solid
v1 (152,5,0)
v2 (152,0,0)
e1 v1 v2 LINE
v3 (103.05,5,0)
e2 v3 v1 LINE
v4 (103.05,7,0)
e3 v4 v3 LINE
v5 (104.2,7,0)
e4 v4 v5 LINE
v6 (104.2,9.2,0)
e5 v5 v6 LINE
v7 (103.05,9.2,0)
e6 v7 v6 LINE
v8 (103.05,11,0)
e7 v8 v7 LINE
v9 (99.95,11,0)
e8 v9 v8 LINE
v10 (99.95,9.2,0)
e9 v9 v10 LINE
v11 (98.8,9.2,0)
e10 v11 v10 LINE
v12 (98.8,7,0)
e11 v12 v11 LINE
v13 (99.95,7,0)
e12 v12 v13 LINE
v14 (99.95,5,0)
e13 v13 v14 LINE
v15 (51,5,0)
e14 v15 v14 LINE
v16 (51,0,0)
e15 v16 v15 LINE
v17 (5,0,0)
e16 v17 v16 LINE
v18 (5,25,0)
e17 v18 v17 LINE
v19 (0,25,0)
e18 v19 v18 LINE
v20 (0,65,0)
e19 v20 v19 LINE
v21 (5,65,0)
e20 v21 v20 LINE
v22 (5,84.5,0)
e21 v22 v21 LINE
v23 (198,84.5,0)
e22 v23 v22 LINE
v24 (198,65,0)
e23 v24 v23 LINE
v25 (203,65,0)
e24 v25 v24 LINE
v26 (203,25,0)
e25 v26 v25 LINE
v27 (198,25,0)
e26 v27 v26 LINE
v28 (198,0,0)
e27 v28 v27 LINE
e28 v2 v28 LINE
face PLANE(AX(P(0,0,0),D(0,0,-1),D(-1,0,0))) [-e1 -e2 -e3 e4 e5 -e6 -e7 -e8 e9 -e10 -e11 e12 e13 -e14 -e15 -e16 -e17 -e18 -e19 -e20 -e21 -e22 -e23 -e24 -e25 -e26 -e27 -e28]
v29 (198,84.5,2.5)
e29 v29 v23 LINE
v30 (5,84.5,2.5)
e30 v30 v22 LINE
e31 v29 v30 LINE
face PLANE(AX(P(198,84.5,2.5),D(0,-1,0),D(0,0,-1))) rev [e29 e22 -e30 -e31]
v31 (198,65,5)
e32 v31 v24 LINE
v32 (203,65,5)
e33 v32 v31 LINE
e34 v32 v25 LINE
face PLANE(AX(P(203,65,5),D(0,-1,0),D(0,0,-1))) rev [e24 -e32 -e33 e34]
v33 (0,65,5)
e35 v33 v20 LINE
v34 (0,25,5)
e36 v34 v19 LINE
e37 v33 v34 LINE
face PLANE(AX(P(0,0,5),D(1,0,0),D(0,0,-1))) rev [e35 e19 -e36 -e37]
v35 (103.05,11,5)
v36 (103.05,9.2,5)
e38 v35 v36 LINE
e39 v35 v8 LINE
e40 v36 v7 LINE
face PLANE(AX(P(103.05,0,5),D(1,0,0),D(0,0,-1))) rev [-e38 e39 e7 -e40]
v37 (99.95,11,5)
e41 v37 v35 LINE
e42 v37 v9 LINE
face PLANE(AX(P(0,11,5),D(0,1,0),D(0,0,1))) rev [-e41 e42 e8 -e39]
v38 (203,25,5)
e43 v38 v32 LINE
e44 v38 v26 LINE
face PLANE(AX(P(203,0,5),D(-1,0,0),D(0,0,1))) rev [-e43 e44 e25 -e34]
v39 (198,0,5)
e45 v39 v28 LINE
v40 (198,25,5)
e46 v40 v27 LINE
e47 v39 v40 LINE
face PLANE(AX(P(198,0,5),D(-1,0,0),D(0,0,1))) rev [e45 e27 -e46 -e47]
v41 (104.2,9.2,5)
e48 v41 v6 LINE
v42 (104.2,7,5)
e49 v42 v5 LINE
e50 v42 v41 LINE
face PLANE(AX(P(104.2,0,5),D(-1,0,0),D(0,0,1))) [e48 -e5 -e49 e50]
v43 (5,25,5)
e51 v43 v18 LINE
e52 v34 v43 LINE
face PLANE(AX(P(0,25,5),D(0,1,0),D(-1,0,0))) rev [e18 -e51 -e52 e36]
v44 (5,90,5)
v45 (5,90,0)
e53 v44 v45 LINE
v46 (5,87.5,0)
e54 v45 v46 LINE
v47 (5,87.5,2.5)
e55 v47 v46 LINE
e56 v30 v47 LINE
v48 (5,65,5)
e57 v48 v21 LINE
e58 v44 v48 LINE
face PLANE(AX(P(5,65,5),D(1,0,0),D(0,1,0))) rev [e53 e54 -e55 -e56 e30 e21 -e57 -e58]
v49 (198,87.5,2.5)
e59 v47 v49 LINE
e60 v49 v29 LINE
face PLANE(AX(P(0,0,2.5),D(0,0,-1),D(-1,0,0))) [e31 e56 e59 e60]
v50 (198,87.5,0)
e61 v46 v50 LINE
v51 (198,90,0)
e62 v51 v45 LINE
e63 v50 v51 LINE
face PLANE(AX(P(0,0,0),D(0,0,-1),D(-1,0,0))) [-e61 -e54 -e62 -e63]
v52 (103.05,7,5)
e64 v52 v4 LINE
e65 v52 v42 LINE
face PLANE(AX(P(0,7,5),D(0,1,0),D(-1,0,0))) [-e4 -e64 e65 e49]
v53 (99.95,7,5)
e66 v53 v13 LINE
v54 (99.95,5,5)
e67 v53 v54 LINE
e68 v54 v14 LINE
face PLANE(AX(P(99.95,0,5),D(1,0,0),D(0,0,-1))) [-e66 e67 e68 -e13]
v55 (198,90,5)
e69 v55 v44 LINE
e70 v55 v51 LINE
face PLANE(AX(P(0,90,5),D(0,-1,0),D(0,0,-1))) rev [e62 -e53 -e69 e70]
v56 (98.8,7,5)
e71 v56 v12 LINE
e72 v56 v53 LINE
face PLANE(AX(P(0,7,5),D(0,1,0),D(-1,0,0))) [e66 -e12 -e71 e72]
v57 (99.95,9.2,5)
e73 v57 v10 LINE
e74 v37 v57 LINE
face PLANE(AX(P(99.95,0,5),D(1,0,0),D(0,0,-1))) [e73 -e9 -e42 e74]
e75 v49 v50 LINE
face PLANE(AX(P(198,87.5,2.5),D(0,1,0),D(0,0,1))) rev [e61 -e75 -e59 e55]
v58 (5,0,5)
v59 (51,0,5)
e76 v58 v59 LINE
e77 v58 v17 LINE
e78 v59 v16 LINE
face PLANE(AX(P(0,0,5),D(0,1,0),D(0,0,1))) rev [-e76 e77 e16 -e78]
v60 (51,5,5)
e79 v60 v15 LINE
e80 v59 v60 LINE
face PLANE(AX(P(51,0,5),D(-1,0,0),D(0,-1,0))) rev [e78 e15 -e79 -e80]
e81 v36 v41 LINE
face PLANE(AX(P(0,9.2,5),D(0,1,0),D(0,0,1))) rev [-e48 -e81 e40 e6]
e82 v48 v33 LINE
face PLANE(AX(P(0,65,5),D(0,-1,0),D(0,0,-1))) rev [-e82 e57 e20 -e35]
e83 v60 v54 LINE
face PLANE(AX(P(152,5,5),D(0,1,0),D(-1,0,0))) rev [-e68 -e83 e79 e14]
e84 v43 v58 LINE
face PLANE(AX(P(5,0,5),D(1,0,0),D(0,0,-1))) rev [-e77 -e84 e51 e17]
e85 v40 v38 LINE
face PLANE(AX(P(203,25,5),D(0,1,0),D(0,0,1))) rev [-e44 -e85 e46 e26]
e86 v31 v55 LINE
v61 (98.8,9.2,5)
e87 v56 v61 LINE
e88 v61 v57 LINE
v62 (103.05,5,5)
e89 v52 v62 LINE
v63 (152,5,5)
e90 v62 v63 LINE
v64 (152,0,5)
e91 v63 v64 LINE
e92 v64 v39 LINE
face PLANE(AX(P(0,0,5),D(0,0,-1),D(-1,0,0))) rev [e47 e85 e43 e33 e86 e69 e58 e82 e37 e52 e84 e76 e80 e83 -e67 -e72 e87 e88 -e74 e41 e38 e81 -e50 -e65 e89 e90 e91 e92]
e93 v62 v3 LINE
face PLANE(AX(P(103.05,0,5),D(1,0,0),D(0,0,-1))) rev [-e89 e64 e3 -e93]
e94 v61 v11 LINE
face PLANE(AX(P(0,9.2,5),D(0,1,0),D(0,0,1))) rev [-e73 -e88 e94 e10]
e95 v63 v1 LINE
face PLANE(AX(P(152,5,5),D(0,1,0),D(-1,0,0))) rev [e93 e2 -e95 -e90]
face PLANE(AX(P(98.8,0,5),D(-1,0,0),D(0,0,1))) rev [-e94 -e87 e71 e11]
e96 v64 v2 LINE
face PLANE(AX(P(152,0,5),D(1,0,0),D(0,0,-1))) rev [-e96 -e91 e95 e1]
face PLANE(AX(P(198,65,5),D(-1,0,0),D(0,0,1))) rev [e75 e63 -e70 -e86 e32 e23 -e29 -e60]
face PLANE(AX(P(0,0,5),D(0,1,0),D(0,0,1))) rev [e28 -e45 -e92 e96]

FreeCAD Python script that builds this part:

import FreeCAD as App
import Part
import Sketcher

V = App.Vector

doc = App.newDocument("Part")
body = doc.addObject("PartDesign::Body", "Body")

# Sketch on XY plane
sketch1 = doc.addObject("Sketcher::SketchObject", "Sketch")
body.addObject(sketch1)
sketch1.AttachmentSupport = (doc.XY_Plane, [""])
sketch1.MapMode = "FlatFace"
sketch1.addGeometry(Part.LineSegment(V(0, 90, 0), V(0, 0, 0)), False)
sketch1.addGeometry(Part.LineSegment(V(0, 0, 0), V(203, 0, 0)), False)
sketch1.addGeometry(Part.LineSegment(V(203, 0, 0), V(203, 90, 0)), False)
sketch1.addGeometry(Part.LineSegment(V(203, 90, 0), V(0, 90, 0)), False)
sketch1.addConstraint(Sketcher.Constraint("Coincident", 0, 2, 1, 1))
sketch1.addConstraint(Sketcher.Constraint("Coincident", 1, 2, 2, 1))
sketch1.addConstraint(Sketcher.Constraint("Coincident", 2, 2, 3, 1))
sketch1.addConstraint(Sketcher.Constraint("Coincident", 3, 2, 0, 1))
sketch1.addConstraint(Sketcher.Constraint("Vertical", 0))
sketch1.addConstraint(Sketcher.Constraint("Horizontal", 1))
sketch1.addConstraint(Sketcher.Constraint("Vertical", 2))
sketch1.addConstraint(Sketcher.Constraint("Horizontal", 3))
sketch1.addConstraint(Sketcher.Constraint("Coincident", 0, 2, -1, 1))
sketch1.addConstraint(Sketcher.Constraint("DistanceX", 1, 1, 1, 2, 203.0))
sketch1.addConstraint(Sketcher.Constraint("DistanceY", 0, 2, 0, 1, 90.0))
pad1 = doc.addObject("PartDesign::Pad", "Pad")
body.addObject(pad1)
pad1.Profile = sketch1
pad1.Length = 5

# Sketch on XY plane
sketch2 = doc.addObject("Sketcher::SketchObject", "Sketch001")
body.addObject(sketch2)
sketch2.AttachmentSupport = (doc.XY_Plane, [""])
sketch2.MapMode = "FlatFace"
sketch2.addGeometry(Part.LineSegment(V(203, 25, 0), V(203, 0, 0)), False)
sketch2.addGeometry(Part.LineSegment(V(203, 0, 0), V(198, 0, 0)), False)
sketch2.addGeometry(Part.LineSegment(V(198, 0, 0), V(198, 25, 0)), False)
sketch2.addGeometry(Part.LineSegment(V(198, 25, 0), V(203, 25, 0)), False)
sketch2.addGeometry(Part.LineSegment(V(203, 90, 0), V(203, 65, 0)), False)
sketch2.addGeometry(Part.LineSegment(V(203, 65, 0), V(198, 65, 0)), False)
sketch2.addGeometry(Part.LineSegment(V(198, 65, 0), V(198, 90, 0)), False)
sketch2.addGeometry(Part.LineSegment(V(198, 90, 0), V(203, 90, 0)), False)
sketch2.addGeometry(Part.LineSegment(V(5, 25, 0), V(5, 0, 0)), False)
sketch2.addGeometry(Part.LineSegment(V(5, 0, 0), V(0, 0, 0)), False)
sketch2.addGeometry(Part.LineSegment(V(0, 0, 0), V(0, 25, 0)), False)
sketch2.addGeometry(Part.LineSegment(V(0, 25, 0), V(5, 25, 0)), False)
sketch2.addGeometry(Part.LineSegment(V(5, 90, 0), V(5, 65, 0)), False)
sketch2.addGeometry(Part.LineSegment(V(5, 65, 0), V(0, 65, 0)), False)
sketch2.addGeometry(Part.LineSegment(V(0, 65, 0), V(0, 90, 0)), False)
sketch2.addGeometry(Part.LineSegment(V(0, 90, 0), V(5, 90, 0)), False)
sketch2.addGeometry(Part.LineSegment(V(152, 5, 0), V(152, 0, 0)), False)
sketch2.addGeometry(Part.LineSegment(V(152, 0, 0), V(51, 0, 0)), False)
sketch2.addGeometry(Part.LineSegment(V(51, 0, 0), V(51, 5, 0)), False)
sketch2.addGeometry(Part.LineSegment(V(51, 5, 0), V(152, 5, 0)), False)
sketch2.addConstraint(Sketcher.Constraint("Coincident", 0, 2, 1, 1))
sketch2.addConstraint(Sketcher.Constraint("Coincident", 1, 2, 2, 1))
sketch2.addConstraint(Sketcher.Constraint("Coincident", 2, 2, 3, 1))
sketch2.addConstraint(Sketcher.Constraint("Coincident", 3, 2, 0, 1))
sketch2.addConstraint(Sketcher.Constraint("Coincident", 4, 2, 5, 1))
sketch2.addConstraint(Sketcher.Constraint("Coincident", 5, 2, 6, 1))
sketch2.addConstraint(Sketcher.Constraint("Coincident", 6, 2, 7, 1))
sketch2.addConstraint(Sketcher.Constraint("Coincident", 7, 2, 4, 1))
sketch2.addConstraint(Sketcher.Constraint("Coincident", 8, 2, 9, 1))
sketch2.addConstraint(Sketcher.Constraint("Coincident", 9, 2, 10, 1))
sketch2.addConstraint(Sketcher.Constraint("Coincident", 10, 2, 11, 1))
sketch2.addConstraint(Sketcher.Constraint("Coincident", 11, 2, 8, 1))
sketch2.addConstraint(Sketcher.Constraint("Coincident", 12, 2, 13, 1))
sketch2.addConstraint(Sketcher.Constraint("Coincident", 13, 2, 14, 1))
sketch2.addConstraint(Sketcher.Constraint("Coincident", 14, 2, 15, 1))
sketch2.addConstraint(Sketcher.Constraint("Coincident", 15, 2, 12, 1))
sketch2.addConstraint(Sketcher.Constraint("Coincident", 16, 2, 17, 1))
sketch2.addConstraint(Sketcher.Constraint("Coincident", 17, 2, 18, 1))
sketch2.addConstraint(Sketcher.Constraint("Coincident", 18, 2, 19, 1))
sketch2.addConstraint(Sketcher.Constraint("Coincident", 19, 2, 16, 1))
sketch2.addConstraint(Sketcher.Constraint("Vertical", 0))
sketch2.addConstraint(Sketcher.Constraint("Horizontal", 1))
sketch2.addConstraint(Sketcher.Constraint("Vertical", 2))
sketch2.addConstraint(Sketcher.Constraint("Horizontal", 3))
sketch2.addConstraint(Sketcher.Constraint("Vertical", 4))
sketch2.addConstraint(Sketcher.Constraint("Horizontal", 5))
sketch2.addConstraint(Sketcher.Constraint("Vertical", 6))
sketch2.addConstraint(Sketcher.Constraint("Horizontal", 7))
sketch2.addConstraint(Sketcher.Constraint("Vertical", 8))
sketch2.addConstraint(Sketcher.Constraint("Horizontal", 9))
sketch2.addConstraint(Sketcher.Constraint("Vertical", 10))
sketch2.addConstraint(Sketcher.Constraint("Horizontal", 11))
sketch2.addConstraint(Sketcher.Constraint("Vertical", 12))
sketch2.addConstraint(Sketcher.Constraint("Horizontal", 13))
sketch2.addConstraint(Sketcher.Constraint("Vertical", 14))
sketch2.addConstraint(Sketcher.Constraint("Horizontal", 15))
sketch2.addConstraint(Sketcher.Constraint("Vertical", 16))
sketch2.addConstraint(Sketcher.Constraint("Horizontal", 17))
sketch2.addConstraint(Sketcher.Constraint("Vertical", 18))
sketch2.addConstraint(Sketcher.Constraint("Horizontal", 19))
sketch2.addConstraint(Sketcher.Constraint("Coincident", 9, 2, -1, 1))
sketch2.addConstraint(Sketcher.Constraint("PointOnObject", 0, 2, -1))
sketch2.addConstraint(Sketcher.Constraint("PointOnObject", 13, 2, -2))
sketch2.addConstraint(Sketcher.Constraint("PointOnObject", 16, 2, -1))
sketch2.addConstraint(Sketcher.Constraint("Horizontal", 3, 2, 10, 2))
sketch2.addConstraint(Sketcher.Constraint("Horizontal", 5, 2, 12, 2))
sketch2.addConstraint(Sketcher.Constraint("Horizontal", 7, 2, 14, 2))
sketch2.addConstraint(Sketcher.Constraint("Vertical", 3, 2, 4, 2))
sketch2.addConstraint(Sketcher.Constraint("Vertical", 2, 2, 5, 2))
sketch2.addConstraint(Sketcher.Constraint("Vertical", 11, 2, 12, 2))
sketch2.addConstraint(Sketcher.Constraint("Equal", 7, 9))
sketch2.addConstraint(Sketcher.Constraint("Equal", 2, 4))
sketch2.addConstraint(Sketcher.Constraint("Equal", 15, 16))
sketch2.addConstraint(Sketcher.Constraint("DistanceX", 1, 2, 1, 1, 5.0))
sketch2.addConstraint(Sketcher.Constraint("DistanceX", 17, 2, 17, 1, 101.0))
sketch2.addConstraint(Sketcher.Constraint("DistanceY", 0, 2, 0, 1, 25.0))
sketch2.addConstraint(Sketcher.Constraint("DistanceX", -1, 1, 0, 2, 203.0))
sketch2.addConstraint(Sketcher.Constraint("DistanceY", -1, 1, 4, 2, 65.0))
sketch2.addConstraint(Sketcher.Constraint("DistanceX", -1, 1, 16, 2, 152.0))
pocket1 = doc.addObject("PartDesign::Pocket", "Pocket")
body.addObject(pocket1)
pocket1.Profile = sketch2
pocket1.Type = "ThroughAll"
pocket1.Reversed = True

# Sketch on XY plane
sketch3 = doc.addObject("Sketcher::SketchObject", "Sketch002")
body.addObject(sketch3)
sketch3.AttachmentSupport = (doc.XY_Plane, [""])
sketch3.MapMode = "FlatFace"
sketch3.addGeometry(Part.LineSegment(V(198, 87.5, 0), V(198, 84.5, 0)), False)
sketch3.addGeometry(Part.LineSegment(V(198, 84.5, 0), V(5, 84.5, 0)), False)
sketch3.addGeometry(Part.LineSegment(V(5, 84.5, 0), V(5, 87.5, 0)), False)
sketch3.addGeometry(Part.LineSegment(V(5, 87.5, 0), V(198, 87.5, 0)), False)
sketch3.addConstraint(Sketcher.Constraint("Coincident", 0, 2, 1, 1))
sketch3.addConstraint(Sketcher.Constraint("Coincident", 1, 2, 2, 1))
sketch3.addConstraint(Sketcher.Constraint("Coincident", 2, 2, 3, 1))
sketch3.addConstraint(Sketcher.Constraint("Coincident", 3, 2, 0, 1))
sketch3.addConstraint(Sketcher.Constraint("Vertical", 0))
sketch3.addConstraint(Sketcher.Constraint("Horizontal", 1))
sketch3.addConstraint(Sketcher.Constraint("Vertical", 2))
sketch3.addConstraint(Sketcher.Constraint("Horizontal", 3))
sketch3.addConstraint(Sketcher.Constraint("DistanceX", 1, 2, 1, 1, 193.0))
sketch3.addConstraint(Sketcher.Constraint("DistanceY", 0, 2, 0, 1, 3.0))
sketch3.addConstraint(Sketcher.Constraint("DistanceX", -1, 1, 0, 2, 198.0))
sketch3.addConstraint(Sketcher.Constraint("DistanceY", -1, 1, 0, 2, 84.5))
pocket2 = doc.addObject("PartDesign::Pocket", "Pocket001")
body.addObject(pocket2)
pocket2.Profile = sketch3
pocket2.Length = 2.5
pocket2.Reversed = True

# Sketch on XY plane
sketch4 = doc.addObject("Sketcher::SketchObject", "Sketch003")
body.addObject(sketch4)
sketch4.AttachmentSupport = (doc.XY_Plane, [""])
sketch4.MapMode = "FlatFace"
sketch4.addGeometry(Part.LineSegment(V(103.05, 11, 0), V(103.05, 9.2, 0)), False)
sketch4.addGeometry(Part.LineSegment(V(103.05, 9.2, 0), V(104.2, 9.2, 0)), False)
sketch4.addGeometry(Part.LineSegment(V(104.2, 9.2, 0), V(104.2, 7, 0)), False)
sketch4.addGeometry(Part.LineSegment(V(104.2, 7, 0), V(103.05, 7, 0)), False)
sketch4.addGeometry(Part.LineSegment(V(103.05, 7, 0), V(103.05, 5, 0)), False)
sketch4.addGeometry(Part.LineSegment(V(103.05, 5, 0), V(99.95, 5, 0)), False)
sketch4.addGeometry(Part.LineSegment(V(99.95, 5, 0), V(99.95, 7, 0)), False)
sketch4.addGeometry(Part.LineSegment(V(99.95, 7, 0), V(98.8, 7, 0)), False)
sketch4.addGeometry(Part.LineSegment(V(98.8, 7, 0), V(98.8, 9.2, 0)), False)
sketch4.addGeometry(Part.LineSegment(V(98.8, 9.2, 0), V(99.95, 9.2, 0)), False)
sketch4.addGeometry(Part.LineSegment(V(99.95, 9.2, 0), V(99.95, 11, 0)), False)
sketch4.addGeometry(Part.LineSegment(V(99.95, 11, 0), V(103.05, 11, 0)), False)
sketch4.addConstraint(Sketcher.Constraint("Coincident", 0, 2, 1, 1))
sketch4.addConstraint(Sketcher.Constraint("Coincident", 1, 2, 2, 1))
sketch4.addConstraint(Sketcher.Constraint("Coincident", 2, 2, 3, 1))
sketch4.addConstraint(Sketcher.Constraint("Coincident", 3, 2, 4, 1))
sketch4.addConstraint(Sketcher.Constraint("Coincident", 4, 2, 5, 1))
sketch4.addConstraint(Sketcher.Constraint("Coincident", 5, 2, 6, 1))
sketch4.addConstraint(Sketcher.Constraint("Coincident", 6, 2, 7, 1))
sketch4.addConstraint(Sketcher.Constraint("Coincident", 7, 2, 8, 1))
sketch4.addConstraint(Sketcher.Constraint("Coincident", 8, 2, 9, 1))
sketch4.addConstraint(Sketcher.Constraint("Coincident", 9, 2, 10, 1))
sketch4.addConstraint(Sketcher.Constraint("Coincident", 10, 2, 11, 1))
sketch4.addConstraint(Sketcher.Constraint("Coincident", 11, 2, 0, 1))
sketch4.addConstraint(Sketcher.Constraint("Vertical", 0))
sketch4.addConstraint(Sketcher.Constraint("Horizontal", 1))
sketch4.addConstraint(Sketcher.Constraint("Vertical", 2))
sketch4.addConstraint(Sketcher.Constraint("Horizontal", 3))
sketch4.addConstraint(Sketcher.Constraint("Vertical", 4))
sketch4.addConstraint(Sketcher.Constraint("Horizontal", 5))
sketch4.addConstraint(Sketcher.Constraint("Vertical", 6))
sketch4.addConstraint(Sketcher.Constraint("Horizontal", 7))
sketch4.addConstraint(Sketcher.Constraint("Vertical", 8))
sketch4.addConstraint(Sketcher.Constraint("Horizontal", 9))
sketch4.addConstraint(Sketcher.Constraint("Vertical", 10))
sketch4.addConstraint(Sketcher.Constraint("Horizontal", 11))
sketch4.addConstraint(Sketcher.Constraint("Horizontal", 3, 2, 6, 2))
sketch4.addConstraint(Sketcher.Constraint("Horizontal", 1, 2, 8, 2))
sketch4.addConstraint(Sketcher.Constraint("Vertical", 0, 2, 3, 2))
sketch4.addConstraint(Sketcher.Constraint("Vertical", 6, 2, 9, 2))
sketch4.addConstraint(Sketcher.Constraint("Equal", 3, 7))
sketch4.addConstraint(Sketcher.Constraint("DistanceY", 4, 2, 4, 1, 2.0))
sketch4.addConstraint(Sketcher.Constraint("DistanceX", 5, 2, 5, 1, 3.1))
sketch4.addConstraint(Sketcher.Constraint("DistanceY", 0, 2, 0, 1, 1.8))
sketch4.addConstraint(Sketcher.Constraint("DistanceY", 2, 2, 2, 1, 2.2))
sketch4.addConstraint(Sketcher.Constraint("DistanceY", -1, 1, 2, 2, 7.0))
sketch4.addConstraint(Sketcher.Constraint("DistanceX", 1, 1, 1, 2, 1.15))
sketch4.addConstraint(Sketcher.Constraint("DistanceX", -1, 1, 1, 2, 104.2))
pocket3 = doc.addObject("PartDesign::Pocket", "Pocket002")
body.addObject(pocket3)
pocket3.Profile = sketch4
pocket3.Type = "ThroughAll"
pocket3.Reversed = True

doc.recompute()
